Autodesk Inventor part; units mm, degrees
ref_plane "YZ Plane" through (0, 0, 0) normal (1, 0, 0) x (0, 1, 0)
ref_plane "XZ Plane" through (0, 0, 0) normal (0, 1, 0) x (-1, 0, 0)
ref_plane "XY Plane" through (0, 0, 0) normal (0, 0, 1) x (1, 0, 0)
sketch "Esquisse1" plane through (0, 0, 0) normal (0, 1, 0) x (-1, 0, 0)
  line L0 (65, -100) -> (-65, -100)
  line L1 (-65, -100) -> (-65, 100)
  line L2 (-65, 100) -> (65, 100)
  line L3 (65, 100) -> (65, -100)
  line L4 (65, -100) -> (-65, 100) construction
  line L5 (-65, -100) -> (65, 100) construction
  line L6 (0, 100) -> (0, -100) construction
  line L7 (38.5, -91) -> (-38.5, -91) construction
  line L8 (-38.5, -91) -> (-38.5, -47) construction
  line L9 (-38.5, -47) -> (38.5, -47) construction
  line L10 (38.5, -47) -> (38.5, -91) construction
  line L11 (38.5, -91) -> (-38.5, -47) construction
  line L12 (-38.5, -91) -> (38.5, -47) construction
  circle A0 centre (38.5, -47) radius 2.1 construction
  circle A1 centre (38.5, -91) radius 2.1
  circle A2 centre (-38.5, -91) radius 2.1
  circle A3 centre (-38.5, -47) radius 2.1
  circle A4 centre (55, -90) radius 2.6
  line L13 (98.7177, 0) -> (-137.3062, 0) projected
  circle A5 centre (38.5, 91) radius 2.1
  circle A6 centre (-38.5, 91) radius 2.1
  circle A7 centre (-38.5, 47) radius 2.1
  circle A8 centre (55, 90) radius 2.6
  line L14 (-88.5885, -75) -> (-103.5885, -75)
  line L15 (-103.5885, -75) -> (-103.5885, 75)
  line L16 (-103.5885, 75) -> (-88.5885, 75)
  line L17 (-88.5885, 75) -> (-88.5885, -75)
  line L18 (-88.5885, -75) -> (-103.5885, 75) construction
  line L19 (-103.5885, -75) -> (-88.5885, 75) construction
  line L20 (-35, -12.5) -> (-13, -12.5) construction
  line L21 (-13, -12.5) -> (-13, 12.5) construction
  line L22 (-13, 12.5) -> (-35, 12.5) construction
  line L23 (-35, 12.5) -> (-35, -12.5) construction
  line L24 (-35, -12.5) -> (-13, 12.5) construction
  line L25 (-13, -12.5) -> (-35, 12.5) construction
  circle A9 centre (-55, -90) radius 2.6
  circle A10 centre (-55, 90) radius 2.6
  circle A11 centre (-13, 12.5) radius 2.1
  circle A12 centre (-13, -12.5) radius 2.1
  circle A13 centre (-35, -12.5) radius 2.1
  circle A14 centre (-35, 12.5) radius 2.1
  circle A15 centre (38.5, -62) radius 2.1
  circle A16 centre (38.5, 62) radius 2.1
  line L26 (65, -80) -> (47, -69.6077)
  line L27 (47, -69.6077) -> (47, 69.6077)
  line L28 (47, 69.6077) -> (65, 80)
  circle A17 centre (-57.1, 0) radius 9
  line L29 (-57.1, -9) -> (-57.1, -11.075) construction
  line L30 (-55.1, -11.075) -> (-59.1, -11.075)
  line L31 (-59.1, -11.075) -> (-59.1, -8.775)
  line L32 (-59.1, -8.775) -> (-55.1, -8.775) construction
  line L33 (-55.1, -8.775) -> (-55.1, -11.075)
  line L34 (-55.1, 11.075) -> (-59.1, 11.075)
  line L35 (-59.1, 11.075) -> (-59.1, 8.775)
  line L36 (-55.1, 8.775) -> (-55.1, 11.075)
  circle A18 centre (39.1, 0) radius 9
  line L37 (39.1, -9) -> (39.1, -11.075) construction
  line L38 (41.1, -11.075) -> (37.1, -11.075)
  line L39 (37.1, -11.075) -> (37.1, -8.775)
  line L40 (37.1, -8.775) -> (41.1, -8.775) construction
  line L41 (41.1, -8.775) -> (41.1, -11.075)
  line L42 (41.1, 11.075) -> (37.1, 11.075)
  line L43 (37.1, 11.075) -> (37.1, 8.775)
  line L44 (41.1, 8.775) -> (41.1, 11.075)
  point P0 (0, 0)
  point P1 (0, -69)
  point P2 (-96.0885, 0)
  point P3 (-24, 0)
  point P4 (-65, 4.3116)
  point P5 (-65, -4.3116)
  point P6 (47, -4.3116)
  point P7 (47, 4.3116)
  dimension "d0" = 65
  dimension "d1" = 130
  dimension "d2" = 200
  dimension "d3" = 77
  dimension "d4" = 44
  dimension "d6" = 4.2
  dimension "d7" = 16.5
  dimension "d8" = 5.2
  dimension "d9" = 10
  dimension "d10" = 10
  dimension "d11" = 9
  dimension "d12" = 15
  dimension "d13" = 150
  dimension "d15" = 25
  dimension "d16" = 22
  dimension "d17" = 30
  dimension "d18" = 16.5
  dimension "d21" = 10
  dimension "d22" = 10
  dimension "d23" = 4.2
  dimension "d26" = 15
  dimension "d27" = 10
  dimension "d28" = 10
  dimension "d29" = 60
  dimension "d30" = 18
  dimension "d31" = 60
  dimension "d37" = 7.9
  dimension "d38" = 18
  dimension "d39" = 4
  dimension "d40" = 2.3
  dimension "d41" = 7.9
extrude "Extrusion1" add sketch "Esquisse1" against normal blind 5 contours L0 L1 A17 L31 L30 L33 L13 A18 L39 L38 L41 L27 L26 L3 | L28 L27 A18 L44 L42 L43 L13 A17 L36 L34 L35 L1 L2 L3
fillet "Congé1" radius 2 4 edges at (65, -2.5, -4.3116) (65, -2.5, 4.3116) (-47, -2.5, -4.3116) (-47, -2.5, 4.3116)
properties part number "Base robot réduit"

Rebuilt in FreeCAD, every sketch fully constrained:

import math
import FreeCAD as App
import Part
import Sketcher

V = App.Vector
Q = App.Units.Quantity


def edges_at(feature, points):
    """Names of the edges that pass closest to the given points."""
    edges = feature.Shape.Edges
    near = lambda p: min(range(len(edges)), key=lambda i: edges[i].distToShape(Part.Vertex(*p))[0])
    return sorted({f"Edge{near(p) + 1}" for p in points})

doc = App.newDocument("Part")
body = doc.addObject("PartDesign::Body", "Body")

# Sketch on XZ plane
sketch1 = body.newObject("Sketcher::SketchObject", "Sketch")
sketch1.AttachmentSupport = (doc.getObject("XZ_Plane"), [""])
sketch1.MapMode = "FlatFace"
sketch1.addGeometry(Part.LineSegment(V(65, -100, 0), V(-65, -100, 0)), False)
sketch1.addGeometry(Part.LineSegment(V(-65, -100, 0), V(-65, -80, 0)), False)
sketch1.addGeometry(Part.LineSegment(V(-65, -80, 0), V(-47, -69.6, 0)), False)
sketch1.addGeometry(Part.LineSegment(V(-47, -69.6, 0), V(-47, -4.3, 0)), False)
sketch1.addGeometry(Part.ArcOfCircle(Part.Circle(V(-39.1, 0, 0), V(0, 0, 1), 9), math.radians(-151), math.radians(-103)), False)
sketch1.addGeometry(Part.LineSegment(V(-41.1, -8.8, 0), V(-41.1, -11.1, 0)), False)
sketch1.addGeometry(Part.LineSegment(V(-41.1, -11.1, 0), V(-37.1, -11.1, 0)), False)
sketch1.addGeometry(Part.LineSegment(V(-37.1, -11.1, 0), V(-37.1, -8.8, 0)), False)
sketch1.addGeometry(Part.ArcOfCircle(Part.Circle(V(-39.1, 0, 0), V(0, 0, 1), 9), math.radians(-77), math.radians(77)), False)
sketch1.addGeometry(Part.LineSegment(V(-37.1, 8.8, 0), V(-37.1, 11.1, 0)), False)
sketch1.addGeometry(Part.LineSegment(V(-37.1, 11.1, 0), V(-41.1, 11.1, 0)), False)
sketch1.addGeometry(Part.LineSegment(V(-41.1, 11.1, 0), V(-41.1, 8.8, 0)), False)
sketch1.addGeometry(Part.ArcOfCircle(Part.Circle(V(-39.1, 0, 0), V(0, 0, 1), 9), math.radians(103), math.radians(151)), False)
sketch1.addGeometry(Part.LineSegment(V(-47, 4.3, 0), V(-47, 69.6, 0)), False)
sketch1.addGeometry(Part.LineSegment(V(-47, 69.6, 0), V(-65, 80, 0)), False)
sketch1.addGeometry(Part.LineSegment(V(-65, 80, 0), V(-65, 100, 0)), False)
sketch1.addGeometry(Part.LineSegment(V(-65, 100, 0), V(65, 100, 0)), False)
sketch1.addGeometry(Part.LineSegment(V(65, 100, 0), V(65, 4.3, 0)), False)
sketch1.addGeometry(Part.ArcOfCircle(Part.Circle(V(57.1, 0, 0), V(0, 0, 1), 9), math.radians(29), math.radians(77)), False)
sketch1.addGeometry(Part.LineSegment(V(59.1, 8.8, 0), V(59.1, 11.1, 0)), False)
sketch1.addGeometry(Part.LineSegment(V(59.1, 11.1, 0), V(55.1, 11.1, 0)), False)
sketch1.addGeometry(Part.LineSegment(V(55.1, 11.1, 0), V(55.1, 8.8, 0)), False)
sketch1.addGeometry(Part.ArcOfCircle(Part.Circle(V(57.1, 0, 0), V(0, 0, 1), 9), math.radians(103), math.radians(257)), False)
sketch1.addGeometry(Part.LineSegment(V(55.1, -8.8, 0), V(55.1, -11.1, 0)), False)
sketch1.addGeometry(Part.LineSegment(V(55.1, -11.1, 0), V(59.1, -11.1, 0)), False)
sketch1.addGeometry(Part.LineSegment(V(59.1, -11.1, 0), V(59.1, -8.8, 0)), False)
sketch1.addGeometry(Part.ArcOfCircle(Part.Circle(V(57.1, 0, 0), V(0, 0, 1), 9), math.radians(-77), math.radians(-29)), False)
sketch1.addGeometry(Part.LineSegment(V(65, -4.3, 0), V(65, -100, 0)), False)
sketch1.addGeometry(Part.Circle(V(55, -90, 0), V(0, 0, 1), 2.6), False)
sketch1.addGeometry(Part.Circle(V(38.5, -91, 0), V(0, 0, 1), 2.1), False)
sketch1.addGeometry(Part.Circle(V(38.5, -47, 0), V(0, 0, 1), 2.1), False)
sketch1.addGeometry(Part.Circle(V(35, -12.5, 0), V(0, 0, 1), 2.1), False)
sketch1.addGeometry(Part.Circle(V(-38.5, -91, 0), V(0, 0, 1), 2.1), False)
sketch1.addGeometry(Part.Circle(V(-55, -90, 0), V(0, 0, 1), 2.6), False)
sketch1.addGeometry(Part.Circle(V(-38.5, -62, 0), V(0, 0, 1), 2.1), False)
sketch1.addGeometry(Part.Circle(V(13, -12.5, 0), V(0, 0, 1), 2.1), False)
sketch1.addGeometry(Part.Circle(V(-55, 90, 0), V(0, 0, 1), 2.6), False)
sketch1.addGeometry(Part.Circle(V(35, 12.5, 0), V(0, 0, 1), 2.1), False)
sketch1.addGeometry(Part.Circle(V(38.5, 47, 0), V(0, 0, 1), 2.1), False)
sketch1.addGeometry(Part.Circle(V(55, 90, 0), V(0, 0, 1), 2.6), False)
sketch1.addGeometry(Part.Circle(V(38.5, 91, 0), V(0, 0, 1), 2.1), False)
sketch1.addGeometry(Part.Circle(V(13, 12.5, 0), V(0, 0, 1), 2.1), False)
sketch1.addGeometry(Part.Circle(V(-38.5, 62, 0), V(0, 0, 1), 2.1), False)
sketch1.addGeometry(Part.Circle(V(-38.5, 91, 0), V(0, 0, 1), 2.1), False)
sketch1.addConstraint(Sketcher.Constraint("Coincident", 0, 2, 1, 1))
sketch1.addConstraint(Sketcher.Constraint("Coincident", 1, 2, 2, 1))
sketch1.addConstraint(Sketcher.Constraint("Coincident", 2, 2, 3, 1))
sketch1.addConstraint(Sketcher.Constraint("Coincident", 3, 2, 4, 1))
sketch1.addConstraint(Sketcher.Constraint("Coincident", 4, 2, 5, 1))
sketch1.addConstraint(Sketcher.Constraint("Coincident", 5, 2, 6, 1))
sketch1.addConstraint(Sketcher.Constraint("Coincident", 6, 2, 7, 1))
sketch1.addConstraint(Sketcher.Constraint("Coincident", 7, 2, 8, 1))
sketch1.addConstraint(Sketcher.Constraint("Coincident", 8, 2, 9, 1))
sketch1.addConstraint(Sketcher.Constraint("Coincident", 9, 2, 10, 1))
sketch1.addConstraint(Sketcher.Constraint("Coincident", 10, 2, 11, 1))
sketch1.addConstraint(Sketcher.Constraint("Coincident", 11, 2, 12, 1))
sketch1.addConstraint(Sketcher.Constraint("Coincident", 12, 2, 13, 1))
sketch1.addConstraint(Sketcher.Constraint("Coincident", 13, 2, 14, 1))
sketch1.addConstraint(Sketcher.Constraint("Coincident", 14, 2, 15, 1))
sketch1.addConstraint(Sketcher.Constraint("Coincident", 15, 2, 16, 1))
sketch1.addConstraint(Sketcher.Constraint("Coincident", 16, 2, 17, 1))
sketch1.addConstraint(Sketcher.Constraint("Coincident", 17, 2, 18, 1))
sketch1.addConstraint(Sketcher.Constraint("Coincident", 18, 2, 19, 1))
sketch1.addConstraint(Sketcher.Constraint("Coincident", 19, 2, 20, 1))
sketch1.addConstraint(Sketcher.Constraint("Coincident", 20, 2, 21, 1))
sketch1.addConstraint(Sketcher.Constraint("Coincident", 21, 2, 22, 1))
sketch1.addConstraint(Sketcher.Constraint("Coincident", 22, 2, 23, 1))
sketch1.addConstraint(Sketcher.Constraint("Coincident", 23, 2, 24, 1))
sketch1.addConstraint(Sketcher.Constraint("Coincident", 24, 2, 25, 1))
sketch1.addConstraint(Sketcher.Constraint("Coincident", 25, 2, 26, 1))
sketch1.addConstraint(Sketcher.Constraint("Coincident", 26, 2, 27, 1))
sketch1.addConstraint(Sketcher.Constraint("Coincident", 27, 2, 0, 1))
sketch1.addConstraint(Sketcher.Constraint("Horizontal", 0))
sketch1.addConstraint(Sketcher.Constraint("Vertical", 1))
sketch1.addConstraint(Sketcher.Constraint("Vertical", 3))
sketch1.addConstraint(Sketcher.Constraint("Vertical", 5))
sketch1.addConstraint(Sketcher.Constraint("Horizontal", 6))
sketch1.addConstraint(Sketcher.Constraint("Vertical", 7))
sketch1.addConstraint(Sketcher.Constraint("Vertical", 9))
sketch1.addConstraint(Sketcher.Constraint("Horizontal", 10))
sketch1.addConstraint(Sketcher.Constraint("Vertical", 11))
sketch1.addConstraint(Sketcher.Constraint("Vertical", 13))
sketch1.addConstraint(Sketcher.Constraint("Vertical", 15))
sketch1.addConstraint(Sketcher.Constraint("Horizontal", 16))
sketch1.addConstraint(Sketcher.Constraint("Vertical", 17))
sketch1.addConstraint(Sketcher.Constraint("Vertical", 19))
sketch1.addConstraint(Sketcher.Constraint("Horizontal", 20))
sketch1.addConstraint(Sketcher.Constraint("Vertical", 21))
sketch1.addConstraint(Sketcher.Constraint("Vertical", 23))
sketch1.addConstraint(Sketcher.Constraint("Horizontal", 24))
sketch1.addConstraint(Sketcher.Constraint("Vertical", 25))
sketch1.addConstraint(Sketcher.Constraint("Vertical", 27))
sketch1.addConstraint(Sketcher.Constraint("Coincident", 8, 3, 4, 3))
sketch1.addConstraint(Sketcher.Constraint("Coincident", 12, 3, 4, 3))
sketch1.addConstraint(Sketcher.Constraint("Coincident", 22, 3, 18, 3))
sketch1.addConstraint(Sketcher.Constraint("Coincident", 26, 3, 18, 3))
sketch1.addConstraint(Sketcher.Constraint("Equal", 4, 8))
sketch1.addConstraint(Sketcher.Constraint("Equal", 8, 12))
sketch1.addConstraint(Sketcher.Constraint("Equal", 12, 18))
sketch1.addConstraint(Sketcher.Constraint("Equal", 18, 22))
sketch1.addConstraint(Sketcher.Constraint("Equal", 22, 26))
sketch1.addConstraint(Sketcher.Constraint("Equal", 29, 30))
sketch1.addConstraint(Sketcher.Constraint("Equal", 30, 31))
sketch1.addConstraint(Sketcher.Constraint("Equal", 31, 32))
sketch1.addConstraint(Sketcher.Constraint("Equal", 28, 33))
sketch1.addConstraint(Sketcher.Constraint("Equal", 32, 34))
sketch1.addConstraint(Sketcher.Constraint("Equal", 34, 35))
sketch1.addConstraint(Sketcher.Constraint("Equal", 33, 36))
sketch1.addConstraint(Sketcher.Constraint("Equal", 35, 37))
sketch1.addConstraint(Sketcher.Constraint("Equal", 37, 38))
sketch1.addConstraint(Sketcher.Constraint("Equal", 36, 39))
sketch1.addConstraint(Sketcher.Constraint("Equal", 38, 40))
sketch1.addConstraint(Sketcher.Constraint("Equal", 40, 41))
sketch1.addConstraint(Sketcher.Constraint("Equal", 41, 42))
sketch1.addConstraint(Sketcher.Constraint("Equal", 42, 43))
sketch1.addConstraint(Sketcher.Constraint("Symmetric", 28, 3, 36, 3, -1, 1))
sketch1.addConstraint(Sketcher.Constraint("Symmetric", 33, 3, 39, 3, -1, 1))
sketch1.addConstraint(Sketcher.Constraint("Symmetric", 32, 3, 40, 3, -1, 1))
sketch1.addConstraint(Sketcher.Constraint("Symmetric", 29, 3, 43, 3, -1, 1))
sketch1.addConstraint(Sketcher.Constraint("Symmetric", 0, 2, 16, 2, -1, 1))
sketch1.addConstraint(Sketcher.Constraint("Symmetric", 29, 3, 32, 3, -2))
sketch1.addConstraint(Sketcher.Constraint("Symmetric", 28, 3, 33, 3, -2))
sketch1.addConstraint(Sketcher.Constraint("Symmetric", 31, 3, 37, 3, -1))
sketch1.addConstraint(Sketcher.Constraint("Symmetric", 30, 3, 38, 3, -1))
sketch1.addConstraint(Sketcher.Constraint("Symmetric", 35, 3, 41, 3, -1))
sketch1.addConstraint(Sketcher.Constraint("Symmetric", 34, 3, 42, 3, -1))
sketch1.addConstraint(Sketcher.Constraint("Symmetric", 7, 2, 8, 2, -1))
sketch1.addConstraint(Sketcher.Constraint("Symmetric", 5, 2, 10, 2, -1))
sketch1.addConstraint(Sketcher.Constraint("Symmetric", 2, 2, 13, 2, -1))
sketch1.addConstraint(Sketcher.Constraint("Symmetric", 1, 2, 14, 2, -1))
sketch1.addConstraint(Sketcher.Constraint("Symmetric", 21, 2, 22, 2, -1))
sketch1.addConstraint(Sketcher.Constraint("Symmetric", 19, 2, 24, 2, -1))
sketch1.addConstraint(Sketcher.Constraint("Horizontal", 31, 3, 35, 3))
sketch1.addConstraint(Sketcher.Constraint("Horizontal", 4, 2, 7, 2))
sketch1.addConstraint(Sketcher.Constraint("Horizontal", 12, 2, 17, 2))
sketch1.addConstraint(Sketcher.Constraint("Horizontal", 11, 2, 18, 2))
sketch1.addConstraint(Sketcher.Constraint("Horizontal", 10, 2, 19, 2))
sketch1.addConstraint(Sketcher.Constraint("Horizontal", 18, 2, 21, 2))
sketch1.addConstraint(Sketcher.Constraint("Horizontal", 3, 2, 26, 2))
sketch1.addConstraint(Sketcher.Constraint("Vertical", 29, 3, 30, 3))
sketch1.addConstraint(Sketcher.Constraint("Vertical", 32, 3, 34, 3))
sketch1.addConstraint(Sketcher.Constraint("Radius", 4, Q("9 mm")))
sketch1.addConstraint(Sketcher.Constraint("Diameter", 28, Q("5.2 mm")))
sketch1.addConstraint(Sketcher.Constraint("Diameter", 29, Q("4.2 mm")))
sketch1.addConstraint(Sketcher.Constraint("DistanceX", 0, 2, 0, 1, Q("130 mm")))
sketch1.addConstraint(Sketcher.Constraint("DistanceX", 6, 1, 6, 2, Q("4 mm")))
sketch1.addConstraint(Sketcher.Constraint("Angle", 2, Q("30 deg")))
sketch1.addConstraint(Sketcher.Constraint("DistanceY", 5, 2, 5, 1, Q("2.3 mm")))
sketch1.addConstraint(Sketcher.Constraint("DistanceY", 29, 3, 30, 3, Q("44 mm")))
sketch1.addConstraint(Sketcher.Constraint("DistanceX", 32, 3, 29, 3, Q("77 mm")))
sketch1.addConstraint(Sketcher.Constraint("DistanceX", 35, 3, 31, 3, Q("22 mm")))
sketch1.addConstraint(Sketcher.Constraint("DistanceY", 31, 3, 37, 3, Q("25 mm")))
sketch1.addConstraint(Sketcher.Constraint("DistanceX", 0, 2, 33, 3, Q("10 mm")))
sketch1.addConstraint(Sketcher.Constraint("DistanceY", 0, 2, 33, 3, Q("10 mm")))
sketch1.addConstraint(Sketcher.Constraint("DistanceY", 0, 2, 32, 3, Q("9 mm")))
sketch1.addConstraint(Sketcher.Constraint("DistanceY", 33, 3, 1, 2, Q("10 mm")))
sketch1.addConstraint(Sketcher.Constraint("DistanceY", 1, 2, 34, 3, Q("18 mm")))
sketch1.addConstraint(Sketcher.Constraint("DistanceX", 1, 2, 2, 2, Q("18 mm")))
sketch1.addConstraint(Sketcher.Constraint("DistanceX", 3, 2, 35, 3, Q("60 mm")))
sketch1.addConstraint(Sketcher.Constraint("DistanceX", 3, 2, 4, 3, Q("7.9 mm")))
sketch1.addConstraint(Sketcher.Constraint("DistanceY", 28, 3, -1, 1, Q("90 mm")))
pad1 = body.newObject("PartDesign::Pad", "Pad")
pad1.Profile = sketch1
pad1.Length = 5
doc.recompute()

fillet = body.newObject("PartDesign::Fillet", "Fillet")
fillet.Base = (pad1, edges_at(pad1, [
    (65, -2.5, -4.312),
    (65, -2.5, 4.312),
    (-47, -2.5, -4.312),
    (-47, -2.5, 4.312),
]))
fillet.Radius = 2

doc.recompute()
